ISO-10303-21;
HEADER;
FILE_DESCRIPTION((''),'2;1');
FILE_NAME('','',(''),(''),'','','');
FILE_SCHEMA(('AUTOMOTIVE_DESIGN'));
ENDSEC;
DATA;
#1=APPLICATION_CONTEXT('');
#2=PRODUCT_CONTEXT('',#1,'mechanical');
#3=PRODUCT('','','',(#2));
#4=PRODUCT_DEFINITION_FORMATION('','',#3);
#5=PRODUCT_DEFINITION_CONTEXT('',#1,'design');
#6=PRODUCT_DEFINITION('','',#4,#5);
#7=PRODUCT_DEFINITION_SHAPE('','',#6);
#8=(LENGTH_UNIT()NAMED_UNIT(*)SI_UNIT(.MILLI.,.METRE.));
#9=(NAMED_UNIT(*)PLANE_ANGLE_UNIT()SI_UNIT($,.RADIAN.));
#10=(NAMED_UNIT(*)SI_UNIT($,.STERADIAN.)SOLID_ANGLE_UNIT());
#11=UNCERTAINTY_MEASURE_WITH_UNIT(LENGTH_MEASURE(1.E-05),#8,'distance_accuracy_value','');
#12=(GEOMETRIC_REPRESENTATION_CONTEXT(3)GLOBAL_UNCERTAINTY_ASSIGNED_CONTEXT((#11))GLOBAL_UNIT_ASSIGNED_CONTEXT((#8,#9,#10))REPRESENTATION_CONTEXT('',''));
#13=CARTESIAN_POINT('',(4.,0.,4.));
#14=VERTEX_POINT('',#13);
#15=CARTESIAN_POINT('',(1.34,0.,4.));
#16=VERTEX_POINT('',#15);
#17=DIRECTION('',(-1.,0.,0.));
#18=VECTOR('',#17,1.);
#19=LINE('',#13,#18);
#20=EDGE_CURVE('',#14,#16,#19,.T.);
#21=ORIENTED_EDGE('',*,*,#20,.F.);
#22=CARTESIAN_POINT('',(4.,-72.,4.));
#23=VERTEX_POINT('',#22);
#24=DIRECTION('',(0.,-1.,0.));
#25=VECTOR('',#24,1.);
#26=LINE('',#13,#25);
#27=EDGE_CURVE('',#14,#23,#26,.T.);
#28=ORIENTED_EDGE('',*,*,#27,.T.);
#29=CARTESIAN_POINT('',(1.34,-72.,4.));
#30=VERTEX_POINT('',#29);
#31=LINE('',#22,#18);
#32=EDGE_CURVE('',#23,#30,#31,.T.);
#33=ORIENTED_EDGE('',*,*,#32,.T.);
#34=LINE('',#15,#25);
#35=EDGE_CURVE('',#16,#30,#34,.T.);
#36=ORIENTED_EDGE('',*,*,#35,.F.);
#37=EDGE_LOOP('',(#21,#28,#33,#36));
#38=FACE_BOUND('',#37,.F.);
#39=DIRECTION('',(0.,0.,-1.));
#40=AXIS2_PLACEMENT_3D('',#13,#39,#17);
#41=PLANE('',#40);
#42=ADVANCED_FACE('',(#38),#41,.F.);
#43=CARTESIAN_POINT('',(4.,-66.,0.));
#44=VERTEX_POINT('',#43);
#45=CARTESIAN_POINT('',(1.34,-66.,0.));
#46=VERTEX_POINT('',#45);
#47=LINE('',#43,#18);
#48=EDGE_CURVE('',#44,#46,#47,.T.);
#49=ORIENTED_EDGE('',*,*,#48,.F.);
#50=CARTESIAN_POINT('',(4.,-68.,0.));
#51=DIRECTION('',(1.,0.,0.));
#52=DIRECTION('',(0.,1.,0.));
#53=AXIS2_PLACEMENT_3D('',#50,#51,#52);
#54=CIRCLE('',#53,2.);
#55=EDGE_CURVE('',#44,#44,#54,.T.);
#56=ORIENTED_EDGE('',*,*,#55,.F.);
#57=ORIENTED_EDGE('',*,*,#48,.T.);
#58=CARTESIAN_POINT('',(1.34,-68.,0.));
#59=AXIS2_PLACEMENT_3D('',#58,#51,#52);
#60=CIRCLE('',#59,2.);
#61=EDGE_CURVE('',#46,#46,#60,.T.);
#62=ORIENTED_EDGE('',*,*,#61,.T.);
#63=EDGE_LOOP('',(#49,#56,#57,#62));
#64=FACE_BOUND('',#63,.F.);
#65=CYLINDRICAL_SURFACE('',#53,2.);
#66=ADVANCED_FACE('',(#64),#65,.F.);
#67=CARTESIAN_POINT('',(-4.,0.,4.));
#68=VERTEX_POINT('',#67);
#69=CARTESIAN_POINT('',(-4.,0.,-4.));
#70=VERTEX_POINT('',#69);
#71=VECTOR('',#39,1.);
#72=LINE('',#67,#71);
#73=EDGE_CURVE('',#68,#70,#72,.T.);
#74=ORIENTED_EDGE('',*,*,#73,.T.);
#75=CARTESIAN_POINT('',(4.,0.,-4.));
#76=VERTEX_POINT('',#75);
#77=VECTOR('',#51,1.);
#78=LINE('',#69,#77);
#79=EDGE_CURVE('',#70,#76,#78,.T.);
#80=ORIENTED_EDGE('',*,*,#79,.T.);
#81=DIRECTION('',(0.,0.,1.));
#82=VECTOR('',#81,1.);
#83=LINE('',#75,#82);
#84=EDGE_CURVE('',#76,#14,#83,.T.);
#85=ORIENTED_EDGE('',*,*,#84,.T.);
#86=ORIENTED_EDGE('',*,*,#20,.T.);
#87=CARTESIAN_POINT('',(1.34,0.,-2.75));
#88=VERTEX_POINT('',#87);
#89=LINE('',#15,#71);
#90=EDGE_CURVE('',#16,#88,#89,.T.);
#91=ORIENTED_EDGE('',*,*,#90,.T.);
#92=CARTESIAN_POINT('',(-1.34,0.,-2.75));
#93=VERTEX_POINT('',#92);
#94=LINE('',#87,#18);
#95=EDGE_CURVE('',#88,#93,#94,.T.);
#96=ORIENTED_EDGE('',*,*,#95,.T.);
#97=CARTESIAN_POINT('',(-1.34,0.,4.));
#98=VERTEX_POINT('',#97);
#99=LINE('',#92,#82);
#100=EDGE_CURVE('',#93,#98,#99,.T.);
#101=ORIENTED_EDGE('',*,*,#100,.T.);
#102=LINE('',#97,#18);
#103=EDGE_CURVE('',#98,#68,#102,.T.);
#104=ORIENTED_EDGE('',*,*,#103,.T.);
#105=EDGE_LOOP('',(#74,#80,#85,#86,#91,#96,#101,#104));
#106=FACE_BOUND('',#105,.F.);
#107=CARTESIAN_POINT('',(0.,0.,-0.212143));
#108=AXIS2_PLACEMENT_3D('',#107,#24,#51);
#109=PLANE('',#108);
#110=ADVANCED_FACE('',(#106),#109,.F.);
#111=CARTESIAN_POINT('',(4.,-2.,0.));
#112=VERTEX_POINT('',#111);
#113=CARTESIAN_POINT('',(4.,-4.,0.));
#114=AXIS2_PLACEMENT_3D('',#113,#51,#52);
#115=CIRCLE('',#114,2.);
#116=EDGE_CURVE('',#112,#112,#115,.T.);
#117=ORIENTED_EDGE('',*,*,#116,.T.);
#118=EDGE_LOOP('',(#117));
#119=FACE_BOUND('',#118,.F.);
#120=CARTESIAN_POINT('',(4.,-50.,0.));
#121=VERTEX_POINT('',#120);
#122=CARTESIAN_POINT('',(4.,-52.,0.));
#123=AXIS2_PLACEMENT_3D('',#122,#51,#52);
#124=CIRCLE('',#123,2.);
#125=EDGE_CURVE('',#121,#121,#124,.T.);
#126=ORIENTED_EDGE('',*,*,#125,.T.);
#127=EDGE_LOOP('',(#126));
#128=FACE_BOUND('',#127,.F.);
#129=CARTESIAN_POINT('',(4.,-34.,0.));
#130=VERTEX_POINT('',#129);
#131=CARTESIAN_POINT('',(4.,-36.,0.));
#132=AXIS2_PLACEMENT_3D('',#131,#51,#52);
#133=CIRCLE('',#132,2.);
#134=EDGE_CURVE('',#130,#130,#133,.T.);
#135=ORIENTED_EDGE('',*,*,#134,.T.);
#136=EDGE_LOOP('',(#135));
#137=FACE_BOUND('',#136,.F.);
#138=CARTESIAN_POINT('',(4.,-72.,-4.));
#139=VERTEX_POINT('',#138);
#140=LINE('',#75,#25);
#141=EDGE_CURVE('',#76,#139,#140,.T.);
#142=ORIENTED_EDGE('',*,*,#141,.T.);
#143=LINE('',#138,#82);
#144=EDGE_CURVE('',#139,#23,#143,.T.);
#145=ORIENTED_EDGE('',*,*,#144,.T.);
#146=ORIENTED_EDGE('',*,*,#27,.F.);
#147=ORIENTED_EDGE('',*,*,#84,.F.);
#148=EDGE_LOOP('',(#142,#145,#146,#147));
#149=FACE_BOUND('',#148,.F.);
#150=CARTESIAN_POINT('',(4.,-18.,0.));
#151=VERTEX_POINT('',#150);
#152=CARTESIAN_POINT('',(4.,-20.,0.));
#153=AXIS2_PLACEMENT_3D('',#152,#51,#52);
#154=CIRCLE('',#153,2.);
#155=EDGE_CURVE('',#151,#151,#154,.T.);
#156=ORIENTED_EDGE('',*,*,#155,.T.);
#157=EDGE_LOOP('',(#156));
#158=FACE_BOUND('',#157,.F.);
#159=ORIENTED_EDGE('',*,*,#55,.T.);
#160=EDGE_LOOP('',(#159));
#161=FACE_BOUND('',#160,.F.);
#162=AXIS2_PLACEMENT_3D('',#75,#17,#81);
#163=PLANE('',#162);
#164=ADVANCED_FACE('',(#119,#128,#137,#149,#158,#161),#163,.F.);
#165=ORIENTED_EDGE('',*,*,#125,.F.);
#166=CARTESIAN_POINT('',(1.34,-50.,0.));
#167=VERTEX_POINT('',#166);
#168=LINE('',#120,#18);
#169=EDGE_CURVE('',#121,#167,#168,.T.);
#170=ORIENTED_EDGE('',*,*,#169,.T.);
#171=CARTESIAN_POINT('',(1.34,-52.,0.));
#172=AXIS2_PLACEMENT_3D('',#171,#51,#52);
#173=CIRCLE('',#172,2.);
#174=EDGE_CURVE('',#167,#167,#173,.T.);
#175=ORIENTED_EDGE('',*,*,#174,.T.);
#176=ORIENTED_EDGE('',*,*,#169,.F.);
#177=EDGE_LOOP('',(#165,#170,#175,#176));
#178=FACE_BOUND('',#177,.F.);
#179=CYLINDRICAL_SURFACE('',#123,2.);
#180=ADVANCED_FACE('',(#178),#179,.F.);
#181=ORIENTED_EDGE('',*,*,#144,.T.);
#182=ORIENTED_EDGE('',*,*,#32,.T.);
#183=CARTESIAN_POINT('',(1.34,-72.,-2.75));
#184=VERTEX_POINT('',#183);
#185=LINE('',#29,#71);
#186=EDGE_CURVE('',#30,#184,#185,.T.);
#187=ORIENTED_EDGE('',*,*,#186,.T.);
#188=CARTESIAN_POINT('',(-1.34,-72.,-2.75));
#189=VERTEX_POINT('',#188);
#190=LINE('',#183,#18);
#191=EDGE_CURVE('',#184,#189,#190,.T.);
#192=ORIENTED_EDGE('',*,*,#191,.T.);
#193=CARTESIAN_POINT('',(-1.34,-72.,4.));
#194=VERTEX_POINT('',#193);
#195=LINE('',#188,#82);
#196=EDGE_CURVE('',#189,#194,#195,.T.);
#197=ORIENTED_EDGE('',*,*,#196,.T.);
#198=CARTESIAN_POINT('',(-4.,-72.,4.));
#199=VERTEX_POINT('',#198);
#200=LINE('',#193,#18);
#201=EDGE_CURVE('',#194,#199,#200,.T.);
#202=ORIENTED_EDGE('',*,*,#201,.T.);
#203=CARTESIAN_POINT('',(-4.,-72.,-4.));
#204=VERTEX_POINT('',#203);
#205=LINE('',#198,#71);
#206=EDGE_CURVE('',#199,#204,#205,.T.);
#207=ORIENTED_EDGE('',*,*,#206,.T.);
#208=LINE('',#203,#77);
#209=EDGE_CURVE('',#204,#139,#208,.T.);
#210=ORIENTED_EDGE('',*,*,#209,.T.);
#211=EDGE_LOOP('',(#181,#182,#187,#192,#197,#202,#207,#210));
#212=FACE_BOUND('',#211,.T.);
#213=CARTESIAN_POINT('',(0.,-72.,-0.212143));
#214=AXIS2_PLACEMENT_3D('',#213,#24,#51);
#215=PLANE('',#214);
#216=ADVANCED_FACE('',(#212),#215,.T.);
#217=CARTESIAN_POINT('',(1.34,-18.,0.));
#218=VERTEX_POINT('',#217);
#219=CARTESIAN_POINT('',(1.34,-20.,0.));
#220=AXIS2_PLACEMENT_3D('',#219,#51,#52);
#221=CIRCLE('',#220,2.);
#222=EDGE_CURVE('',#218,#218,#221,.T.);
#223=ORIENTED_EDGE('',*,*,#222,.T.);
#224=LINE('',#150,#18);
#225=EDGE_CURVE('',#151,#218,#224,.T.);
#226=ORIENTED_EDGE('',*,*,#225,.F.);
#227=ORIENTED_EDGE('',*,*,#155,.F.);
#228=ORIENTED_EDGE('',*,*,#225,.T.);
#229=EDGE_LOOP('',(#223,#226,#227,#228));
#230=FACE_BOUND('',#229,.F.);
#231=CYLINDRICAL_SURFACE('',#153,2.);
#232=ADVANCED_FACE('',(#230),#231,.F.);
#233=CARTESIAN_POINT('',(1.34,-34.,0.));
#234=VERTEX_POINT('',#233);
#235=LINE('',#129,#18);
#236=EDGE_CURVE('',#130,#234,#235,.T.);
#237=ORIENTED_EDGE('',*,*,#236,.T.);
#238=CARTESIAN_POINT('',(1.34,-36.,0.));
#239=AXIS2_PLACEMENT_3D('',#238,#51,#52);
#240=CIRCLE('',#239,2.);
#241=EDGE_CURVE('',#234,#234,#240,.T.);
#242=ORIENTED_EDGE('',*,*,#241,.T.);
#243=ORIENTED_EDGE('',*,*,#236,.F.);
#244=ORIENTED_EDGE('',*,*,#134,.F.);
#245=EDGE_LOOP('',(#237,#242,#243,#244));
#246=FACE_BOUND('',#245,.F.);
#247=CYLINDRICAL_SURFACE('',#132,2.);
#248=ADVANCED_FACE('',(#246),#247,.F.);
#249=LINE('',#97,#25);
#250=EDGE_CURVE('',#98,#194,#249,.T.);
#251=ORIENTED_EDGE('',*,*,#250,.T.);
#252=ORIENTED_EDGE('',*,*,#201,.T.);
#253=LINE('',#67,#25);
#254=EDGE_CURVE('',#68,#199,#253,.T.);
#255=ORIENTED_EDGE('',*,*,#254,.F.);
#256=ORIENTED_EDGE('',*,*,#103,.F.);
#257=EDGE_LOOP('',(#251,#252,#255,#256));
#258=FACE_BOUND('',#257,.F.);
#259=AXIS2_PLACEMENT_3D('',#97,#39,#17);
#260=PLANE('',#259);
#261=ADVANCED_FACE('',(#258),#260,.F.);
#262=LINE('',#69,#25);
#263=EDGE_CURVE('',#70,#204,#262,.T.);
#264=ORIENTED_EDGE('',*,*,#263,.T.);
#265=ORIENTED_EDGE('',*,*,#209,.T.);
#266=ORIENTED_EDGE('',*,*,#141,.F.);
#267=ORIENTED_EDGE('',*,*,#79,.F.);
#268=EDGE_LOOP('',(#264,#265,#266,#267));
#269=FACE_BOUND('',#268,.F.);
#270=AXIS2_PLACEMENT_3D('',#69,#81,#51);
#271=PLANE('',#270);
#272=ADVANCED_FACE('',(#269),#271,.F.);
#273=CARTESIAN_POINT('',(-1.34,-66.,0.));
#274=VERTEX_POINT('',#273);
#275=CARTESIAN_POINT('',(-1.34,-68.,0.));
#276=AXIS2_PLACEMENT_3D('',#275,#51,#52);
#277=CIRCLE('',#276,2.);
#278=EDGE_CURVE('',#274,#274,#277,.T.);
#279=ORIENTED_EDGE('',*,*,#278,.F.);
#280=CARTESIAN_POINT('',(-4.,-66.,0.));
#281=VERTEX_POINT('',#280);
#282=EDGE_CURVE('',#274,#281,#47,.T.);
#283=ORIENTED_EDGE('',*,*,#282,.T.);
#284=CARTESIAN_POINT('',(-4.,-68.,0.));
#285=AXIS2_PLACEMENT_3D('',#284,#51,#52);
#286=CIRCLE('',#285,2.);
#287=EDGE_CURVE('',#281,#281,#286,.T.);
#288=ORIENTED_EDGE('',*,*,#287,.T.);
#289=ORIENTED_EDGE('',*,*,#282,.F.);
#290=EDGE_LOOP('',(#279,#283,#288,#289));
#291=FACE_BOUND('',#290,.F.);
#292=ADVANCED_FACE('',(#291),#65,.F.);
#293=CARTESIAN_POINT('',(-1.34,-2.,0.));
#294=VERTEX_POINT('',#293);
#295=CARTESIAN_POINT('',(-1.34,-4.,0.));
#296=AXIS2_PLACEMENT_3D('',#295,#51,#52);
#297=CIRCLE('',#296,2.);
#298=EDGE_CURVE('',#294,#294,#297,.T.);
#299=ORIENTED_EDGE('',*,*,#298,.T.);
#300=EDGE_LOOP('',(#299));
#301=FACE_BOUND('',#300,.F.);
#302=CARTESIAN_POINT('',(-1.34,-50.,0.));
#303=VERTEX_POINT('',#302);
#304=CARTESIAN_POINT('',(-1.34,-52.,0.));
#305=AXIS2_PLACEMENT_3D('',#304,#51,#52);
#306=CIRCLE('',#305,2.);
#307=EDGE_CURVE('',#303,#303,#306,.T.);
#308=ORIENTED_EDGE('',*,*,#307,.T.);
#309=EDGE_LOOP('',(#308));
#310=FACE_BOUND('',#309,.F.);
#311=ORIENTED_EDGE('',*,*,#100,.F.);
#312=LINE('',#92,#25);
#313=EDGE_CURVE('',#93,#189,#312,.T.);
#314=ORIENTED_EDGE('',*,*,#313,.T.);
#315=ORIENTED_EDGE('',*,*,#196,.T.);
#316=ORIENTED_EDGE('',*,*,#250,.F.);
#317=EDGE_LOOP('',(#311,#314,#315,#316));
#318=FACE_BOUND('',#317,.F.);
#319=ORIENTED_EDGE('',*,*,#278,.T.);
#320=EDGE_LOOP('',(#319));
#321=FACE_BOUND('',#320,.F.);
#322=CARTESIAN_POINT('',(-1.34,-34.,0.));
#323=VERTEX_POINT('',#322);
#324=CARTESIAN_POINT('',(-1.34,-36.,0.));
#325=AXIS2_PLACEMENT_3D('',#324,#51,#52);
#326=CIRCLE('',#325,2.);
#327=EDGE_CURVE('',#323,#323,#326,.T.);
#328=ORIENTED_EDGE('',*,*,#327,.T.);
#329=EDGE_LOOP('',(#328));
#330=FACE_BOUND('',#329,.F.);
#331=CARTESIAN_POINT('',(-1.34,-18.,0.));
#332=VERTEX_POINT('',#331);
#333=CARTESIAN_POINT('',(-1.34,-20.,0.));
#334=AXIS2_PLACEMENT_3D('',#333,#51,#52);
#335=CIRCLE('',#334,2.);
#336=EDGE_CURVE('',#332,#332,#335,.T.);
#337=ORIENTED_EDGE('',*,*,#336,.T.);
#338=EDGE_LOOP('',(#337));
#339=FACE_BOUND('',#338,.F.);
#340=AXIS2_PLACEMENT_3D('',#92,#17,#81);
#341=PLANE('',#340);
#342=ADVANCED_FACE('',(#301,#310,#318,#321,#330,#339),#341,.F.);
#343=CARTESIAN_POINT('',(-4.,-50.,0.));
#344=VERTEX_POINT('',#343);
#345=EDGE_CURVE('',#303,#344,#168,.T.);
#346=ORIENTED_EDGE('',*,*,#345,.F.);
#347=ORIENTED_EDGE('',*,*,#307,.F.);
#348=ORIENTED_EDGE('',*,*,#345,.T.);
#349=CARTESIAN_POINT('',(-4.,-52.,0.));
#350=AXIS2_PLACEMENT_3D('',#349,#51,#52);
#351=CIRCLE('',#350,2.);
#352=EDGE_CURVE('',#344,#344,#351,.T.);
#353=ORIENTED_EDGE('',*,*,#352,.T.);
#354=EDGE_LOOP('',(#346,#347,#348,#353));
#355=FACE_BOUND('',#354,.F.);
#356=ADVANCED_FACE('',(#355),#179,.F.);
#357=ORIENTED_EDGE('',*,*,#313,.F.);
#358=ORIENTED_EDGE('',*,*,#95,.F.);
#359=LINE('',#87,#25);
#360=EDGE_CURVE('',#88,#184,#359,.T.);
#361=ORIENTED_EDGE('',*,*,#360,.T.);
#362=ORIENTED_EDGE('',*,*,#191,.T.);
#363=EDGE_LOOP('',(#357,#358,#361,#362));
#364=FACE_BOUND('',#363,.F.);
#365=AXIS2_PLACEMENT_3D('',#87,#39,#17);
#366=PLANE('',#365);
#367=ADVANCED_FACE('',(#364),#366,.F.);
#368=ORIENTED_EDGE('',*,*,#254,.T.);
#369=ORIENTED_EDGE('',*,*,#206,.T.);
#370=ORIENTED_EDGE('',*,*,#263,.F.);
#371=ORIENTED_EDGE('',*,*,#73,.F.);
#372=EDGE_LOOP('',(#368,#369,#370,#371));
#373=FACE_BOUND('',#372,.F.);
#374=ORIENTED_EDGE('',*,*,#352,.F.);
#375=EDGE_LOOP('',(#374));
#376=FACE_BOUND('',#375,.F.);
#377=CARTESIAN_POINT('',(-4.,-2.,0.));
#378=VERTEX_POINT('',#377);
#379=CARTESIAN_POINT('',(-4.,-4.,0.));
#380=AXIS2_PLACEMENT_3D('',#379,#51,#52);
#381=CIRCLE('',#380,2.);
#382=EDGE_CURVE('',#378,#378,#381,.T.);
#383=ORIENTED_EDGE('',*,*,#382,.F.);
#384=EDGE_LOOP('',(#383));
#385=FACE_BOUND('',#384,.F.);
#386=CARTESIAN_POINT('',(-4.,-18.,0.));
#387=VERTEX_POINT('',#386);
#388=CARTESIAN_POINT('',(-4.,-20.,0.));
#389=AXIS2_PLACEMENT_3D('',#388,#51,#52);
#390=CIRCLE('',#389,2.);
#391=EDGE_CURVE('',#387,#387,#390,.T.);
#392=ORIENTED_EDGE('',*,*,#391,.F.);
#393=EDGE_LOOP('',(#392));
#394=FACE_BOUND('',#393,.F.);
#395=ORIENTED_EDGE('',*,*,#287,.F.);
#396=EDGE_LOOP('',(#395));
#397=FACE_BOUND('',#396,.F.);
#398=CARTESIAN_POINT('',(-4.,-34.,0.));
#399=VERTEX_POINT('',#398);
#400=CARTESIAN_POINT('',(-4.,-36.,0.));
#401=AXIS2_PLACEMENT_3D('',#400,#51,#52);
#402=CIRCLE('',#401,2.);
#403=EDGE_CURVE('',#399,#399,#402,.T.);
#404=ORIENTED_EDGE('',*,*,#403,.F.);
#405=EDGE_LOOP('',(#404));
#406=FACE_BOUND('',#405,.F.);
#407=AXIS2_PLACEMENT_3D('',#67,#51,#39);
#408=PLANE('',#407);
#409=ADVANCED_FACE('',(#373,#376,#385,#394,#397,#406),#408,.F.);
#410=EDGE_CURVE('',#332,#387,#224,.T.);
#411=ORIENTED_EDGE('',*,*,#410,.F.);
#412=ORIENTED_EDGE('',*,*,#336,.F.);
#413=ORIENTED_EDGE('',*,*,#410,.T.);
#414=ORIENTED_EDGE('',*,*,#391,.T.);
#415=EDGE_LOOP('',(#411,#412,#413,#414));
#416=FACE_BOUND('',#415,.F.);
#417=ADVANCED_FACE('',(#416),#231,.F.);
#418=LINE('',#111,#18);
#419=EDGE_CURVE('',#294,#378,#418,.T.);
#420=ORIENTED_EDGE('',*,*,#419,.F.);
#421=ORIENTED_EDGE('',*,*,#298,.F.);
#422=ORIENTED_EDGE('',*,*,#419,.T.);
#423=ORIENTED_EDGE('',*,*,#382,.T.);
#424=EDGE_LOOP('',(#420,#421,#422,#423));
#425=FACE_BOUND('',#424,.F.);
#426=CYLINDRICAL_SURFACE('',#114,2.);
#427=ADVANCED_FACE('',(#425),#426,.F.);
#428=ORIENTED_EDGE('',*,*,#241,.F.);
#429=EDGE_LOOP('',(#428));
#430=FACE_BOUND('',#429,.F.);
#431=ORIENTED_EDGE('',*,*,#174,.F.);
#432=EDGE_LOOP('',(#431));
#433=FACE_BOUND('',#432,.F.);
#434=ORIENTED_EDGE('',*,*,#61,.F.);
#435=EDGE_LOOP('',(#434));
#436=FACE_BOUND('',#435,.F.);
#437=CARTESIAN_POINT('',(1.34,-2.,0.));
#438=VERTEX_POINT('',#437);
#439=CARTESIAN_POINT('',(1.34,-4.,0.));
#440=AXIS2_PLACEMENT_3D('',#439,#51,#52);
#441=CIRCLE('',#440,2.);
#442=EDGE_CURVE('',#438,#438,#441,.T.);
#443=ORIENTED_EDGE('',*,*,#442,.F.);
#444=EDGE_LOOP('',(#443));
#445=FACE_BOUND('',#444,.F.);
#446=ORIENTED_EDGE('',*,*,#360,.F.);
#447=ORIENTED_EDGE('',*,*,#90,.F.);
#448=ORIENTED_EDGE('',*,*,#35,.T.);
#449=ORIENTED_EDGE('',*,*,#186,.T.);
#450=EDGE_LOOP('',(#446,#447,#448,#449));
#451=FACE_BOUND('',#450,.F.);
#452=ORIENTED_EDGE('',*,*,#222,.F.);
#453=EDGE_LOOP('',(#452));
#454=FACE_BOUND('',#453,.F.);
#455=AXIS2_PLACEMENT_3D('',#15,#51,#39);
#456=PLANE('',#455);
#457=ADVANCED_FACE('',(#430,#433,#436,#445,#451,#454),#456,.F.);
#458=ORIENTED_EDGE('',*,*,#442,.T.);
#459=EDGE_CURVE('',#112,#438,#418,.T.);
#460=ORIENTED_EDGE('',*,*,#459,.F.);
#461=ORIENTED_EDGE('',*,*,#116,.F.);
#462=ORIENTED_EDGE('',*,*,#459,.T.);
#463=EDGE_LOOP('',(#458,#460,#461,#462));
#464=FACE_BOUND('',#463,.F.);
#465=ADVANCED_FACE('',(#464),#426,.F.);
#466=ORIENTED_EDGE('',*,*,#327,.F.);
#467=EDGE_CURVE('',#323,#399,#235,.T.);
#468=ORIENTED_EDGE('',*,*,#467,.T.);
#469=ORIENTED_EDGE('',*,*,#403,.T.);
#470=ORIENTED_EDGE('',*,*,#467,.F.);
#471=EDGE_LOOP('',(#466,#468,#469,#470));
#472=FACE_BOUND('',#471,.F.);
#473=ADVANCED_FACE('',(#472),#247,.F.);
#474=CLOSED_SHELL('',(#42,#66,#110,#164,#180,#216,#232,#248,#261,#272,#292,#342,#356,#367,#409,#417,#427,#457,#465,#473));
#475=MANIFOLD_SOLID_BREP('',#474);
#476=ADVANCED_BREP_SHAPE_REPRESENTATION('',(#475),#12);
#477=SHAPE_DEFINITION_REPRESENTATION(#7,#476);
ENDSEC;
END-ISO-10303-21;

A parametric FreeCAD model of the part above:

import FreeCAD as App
import Part
import Sketcher
from FreeCAD import Vector

doc = App.newDocument("Part")
params = doc.addObject("Spreadsheet::Sheet", "Params")
for row, (alias, value) in enumerate([
    ("sketch1_width", "8 mm"),
    ("sketch1_width2", "2.66 mm"),
    ("sketch1_height", "6.75 mm"),
    ("pad1_length", "72 mm"),
    ("sketch2_diameter", "4 mm"),
    ("pocket1_length", "8.1 mm"),
], start=1):
    params.set(f"A{row}", alias)
    params.set(f"B{row}", "=" + value)
    params.setAlias(f"B{row}", alias)

body = doc.addObject("PartDesign::Body", "Body")

# Sketch on XZ plane
sketch1 = body.newObject("Sketcher::SketchObject", "Sketch")
sketch1.AttachmentSupport = (doc.getObject("XZ_Plane"), [""])
sketch1.MapMode = "FlatFace"
sketch1.addGeometry(Part.LineSegment(Vector(-1.34, 4, 0), Vector(-4, 4, 0)), False)
sketch1.addGeometry(Part.LineSegment(Vector(-4, 4, 0), Vector(-4, -4, 0)), False)
sketch1.addGeometry(Part.LineSegment(Vector(-4, -4, 0), Vector(4, -4, 0)), False)
sketch1.addGeometry(Part.LineSegment(Vector(4, -4, 0), Vector(4, 4, 0)), False)
sketch1.addGeometry(Part.LineSegment(Vector(4, 4, 0), Vector(1.34, 4, 0)), False)
sketch1.addGeometry(Part.LineSegment(Vector(1.34, 4, 0), Vector(1.34, -2.75, 0)), False)
sketch1.addGeometry(Part.LineSegment(Vector(1.34, -2.75, 0), Vector(-1.34, -2.75, 0)), False)
sketch1.addGeometry(Part.LineSegment(Vector(-1.34, -2.75, 0), Vector(-1.34, 4, 0)), False)
sketch1.addConstraint(Sketcher.Constraint("Coincident", 0, 2, 1, 1))
sketch1.addConstraint(Sketcher.Constraint("Coincident", 1, 2, 2, 1))
sketch1.addConstraint(Sketcher.Constraint("Coincident", 2, 2, 3, 1))
sketch1.addConstraint(Sketcher.Constraint("Coincident", 3, 2, 4, 1))
sketch1.addConstraint(Sketcher.Constraint("Coincident", 4, 2, 5, 1))
sketch1.addConstraint(Sketcher.Constraint("Coincident", 5, 2, 6, 1))
sketch1.addConstraint(Sketcher.Constraint("Coincident", 6, 2, 7, 1))
sketch1.addConstraint(Sketcher.Constraint("Coincident", 7, 2, 0, 1))
sketch1.addConstraint(Sketcher.Constraint("Horizontal", 0))
sketch1.addConstraint(Sketcher.Constraint("Vertical", 1))
sketch1.addConstraint(Sketcher.Constraint("Horizontal", 2))
sketch1.addConstraint(Sketcher.Constraint("Vertical", 3))
sketch1.addConstraint(Sketcher.Constraint("Horizontal", 4))
sketch1.addConstraint(Sketcher.Constraint("Vertical", 5))
sketch1.addConstraint(Sketcher.Constraint("Horizontal", 6))
sketch1.addConstraint(Sketcher.Constraint("Vertical", 7))
sketch1.addConstraint(Sketcher.Constraint("Symmetric", 0, 2, 2, 2, -1, 1))
sketch1.addConstraint(Sketcher.Constraint("Symmetric", 4, 2, 7, 2, -2))
sketch1.addConstraint(Sketcher.Constraint("Equal", 2, 1))
sketch1.addConstraint(Sketcher.Constraint("DistanceX", 2, 1, 2, 2, 8.0))
sketch1.addConstraint(Sketcher.Constraint("DistanceX", 0, 2, 0, 1, 2.66))
sketch1.addConstraint(Sketcher.Constraint("DistanceY", 5, 2, 5, 1, 6.75))
sketch1.setExpression("Constraints[19]", "Params.sketch1_width")
sketch1.setExpression("Constraints[20]", "Params.sketch1_width2")
sketch1.setExpression("Constraints[21]", "Params.sketch1_height")
pad1 = body.newObject("PartDesign::Pad", "Pad")
pad1.Profile = sketch1
pad1.setExpression("Length", "Params.pad1_length")

# Sketch on YZ plane
sketch2 = body.newObject("Sketcher::SketchObject", "Sketch001")
sketch2.AttachmentSupport = (doc.getObject("YZ_Plane"), [""])
sketch2.MapMode = "FlatFace"
sketch2.AttachmentOffset = App.Placement(Vector(0, 0, 4), App.Rotation())
sketch2.addGeometry(Part.Circle(Vector(-68, 0, 0), Vector(0, 0, 1), 2), False)
sketch2.addGeometry(Part.Circle(Vector(-52, 0, 0), Vector(0, 0, 1), 2), False)
sketch2.addGeometry(Part.Circle(Vector(-36, 0, 0), Vector(0, 0, 1), 2), False)
sketch2.addGeometry(Part.Circle(Vector(-20, 0, 0), Vector(0, 0, 1), 2), False)
sketch2.addGeometry(Part.Circle(Vector(-4, 0, 0), Vector(0, 0, 1), 2), False)
sketch2.addConstraint(Sketcher.Constraint("Equal", 0, 1))
sketch2.addConstraint(Sketcher.Constraint("Equal", 1, 2))
sketch2.addConstraint(Sketcher.Constraint("Equal", 2, 3))
sketch2.addConstraint(Sketcher.Constraint("Equal", 3, 4))
sketch2.addConstraint(Sketcher.Constraint("PointOnObject", 0, 3, -1))
sketch2.addConstraint(Sketcher.Constraint("PointOnObject", 1, 3, -1))
sketch2.addConstraint(Sketcher.Constraint("PointOnObject", 2, 3, -1))
sketch2.addConstraint(Sketcher.Constraint("PointOnObject", 3, 3, -1))
sketch2.addConstraint(Sketcher.Constraint("PointOnObject", 4, 3, -1))
sketch2.addConstraint(Sketcher.Constraint("Diameter", 0, 4.0))
sketch2.addConstraint(Sketcher.Constraint("DistanceX", 0, 3, -1, 1, 68.0))
sketch2.addConstraint(Sketcher.Constraint("DistanceX", 1, 3, -1, 1, 52.0))
sketch2.addConstraint(Sketcher.Constraint("DistanceX", 2, 3, -1, 1, 36.0))
sketch2.addConstraint(Sketcher.Constraint("DistanceX", 3, 3, -1, 1, 20.0))
sketch2.addConstraint(Sketcher.Constraint("DistanceX", 4, 3, -1, 1, 4.0))
sketch2.setExpression("Constraints[9]", "Params.sketch2_diameter")
pocket1 = body.newObject("PartDesign::Pocket", "Pocket")
pocket1.Profile = sketch2
pocket1.setExpression("Length", "Params.pocket1_length")

doc.recompute()
